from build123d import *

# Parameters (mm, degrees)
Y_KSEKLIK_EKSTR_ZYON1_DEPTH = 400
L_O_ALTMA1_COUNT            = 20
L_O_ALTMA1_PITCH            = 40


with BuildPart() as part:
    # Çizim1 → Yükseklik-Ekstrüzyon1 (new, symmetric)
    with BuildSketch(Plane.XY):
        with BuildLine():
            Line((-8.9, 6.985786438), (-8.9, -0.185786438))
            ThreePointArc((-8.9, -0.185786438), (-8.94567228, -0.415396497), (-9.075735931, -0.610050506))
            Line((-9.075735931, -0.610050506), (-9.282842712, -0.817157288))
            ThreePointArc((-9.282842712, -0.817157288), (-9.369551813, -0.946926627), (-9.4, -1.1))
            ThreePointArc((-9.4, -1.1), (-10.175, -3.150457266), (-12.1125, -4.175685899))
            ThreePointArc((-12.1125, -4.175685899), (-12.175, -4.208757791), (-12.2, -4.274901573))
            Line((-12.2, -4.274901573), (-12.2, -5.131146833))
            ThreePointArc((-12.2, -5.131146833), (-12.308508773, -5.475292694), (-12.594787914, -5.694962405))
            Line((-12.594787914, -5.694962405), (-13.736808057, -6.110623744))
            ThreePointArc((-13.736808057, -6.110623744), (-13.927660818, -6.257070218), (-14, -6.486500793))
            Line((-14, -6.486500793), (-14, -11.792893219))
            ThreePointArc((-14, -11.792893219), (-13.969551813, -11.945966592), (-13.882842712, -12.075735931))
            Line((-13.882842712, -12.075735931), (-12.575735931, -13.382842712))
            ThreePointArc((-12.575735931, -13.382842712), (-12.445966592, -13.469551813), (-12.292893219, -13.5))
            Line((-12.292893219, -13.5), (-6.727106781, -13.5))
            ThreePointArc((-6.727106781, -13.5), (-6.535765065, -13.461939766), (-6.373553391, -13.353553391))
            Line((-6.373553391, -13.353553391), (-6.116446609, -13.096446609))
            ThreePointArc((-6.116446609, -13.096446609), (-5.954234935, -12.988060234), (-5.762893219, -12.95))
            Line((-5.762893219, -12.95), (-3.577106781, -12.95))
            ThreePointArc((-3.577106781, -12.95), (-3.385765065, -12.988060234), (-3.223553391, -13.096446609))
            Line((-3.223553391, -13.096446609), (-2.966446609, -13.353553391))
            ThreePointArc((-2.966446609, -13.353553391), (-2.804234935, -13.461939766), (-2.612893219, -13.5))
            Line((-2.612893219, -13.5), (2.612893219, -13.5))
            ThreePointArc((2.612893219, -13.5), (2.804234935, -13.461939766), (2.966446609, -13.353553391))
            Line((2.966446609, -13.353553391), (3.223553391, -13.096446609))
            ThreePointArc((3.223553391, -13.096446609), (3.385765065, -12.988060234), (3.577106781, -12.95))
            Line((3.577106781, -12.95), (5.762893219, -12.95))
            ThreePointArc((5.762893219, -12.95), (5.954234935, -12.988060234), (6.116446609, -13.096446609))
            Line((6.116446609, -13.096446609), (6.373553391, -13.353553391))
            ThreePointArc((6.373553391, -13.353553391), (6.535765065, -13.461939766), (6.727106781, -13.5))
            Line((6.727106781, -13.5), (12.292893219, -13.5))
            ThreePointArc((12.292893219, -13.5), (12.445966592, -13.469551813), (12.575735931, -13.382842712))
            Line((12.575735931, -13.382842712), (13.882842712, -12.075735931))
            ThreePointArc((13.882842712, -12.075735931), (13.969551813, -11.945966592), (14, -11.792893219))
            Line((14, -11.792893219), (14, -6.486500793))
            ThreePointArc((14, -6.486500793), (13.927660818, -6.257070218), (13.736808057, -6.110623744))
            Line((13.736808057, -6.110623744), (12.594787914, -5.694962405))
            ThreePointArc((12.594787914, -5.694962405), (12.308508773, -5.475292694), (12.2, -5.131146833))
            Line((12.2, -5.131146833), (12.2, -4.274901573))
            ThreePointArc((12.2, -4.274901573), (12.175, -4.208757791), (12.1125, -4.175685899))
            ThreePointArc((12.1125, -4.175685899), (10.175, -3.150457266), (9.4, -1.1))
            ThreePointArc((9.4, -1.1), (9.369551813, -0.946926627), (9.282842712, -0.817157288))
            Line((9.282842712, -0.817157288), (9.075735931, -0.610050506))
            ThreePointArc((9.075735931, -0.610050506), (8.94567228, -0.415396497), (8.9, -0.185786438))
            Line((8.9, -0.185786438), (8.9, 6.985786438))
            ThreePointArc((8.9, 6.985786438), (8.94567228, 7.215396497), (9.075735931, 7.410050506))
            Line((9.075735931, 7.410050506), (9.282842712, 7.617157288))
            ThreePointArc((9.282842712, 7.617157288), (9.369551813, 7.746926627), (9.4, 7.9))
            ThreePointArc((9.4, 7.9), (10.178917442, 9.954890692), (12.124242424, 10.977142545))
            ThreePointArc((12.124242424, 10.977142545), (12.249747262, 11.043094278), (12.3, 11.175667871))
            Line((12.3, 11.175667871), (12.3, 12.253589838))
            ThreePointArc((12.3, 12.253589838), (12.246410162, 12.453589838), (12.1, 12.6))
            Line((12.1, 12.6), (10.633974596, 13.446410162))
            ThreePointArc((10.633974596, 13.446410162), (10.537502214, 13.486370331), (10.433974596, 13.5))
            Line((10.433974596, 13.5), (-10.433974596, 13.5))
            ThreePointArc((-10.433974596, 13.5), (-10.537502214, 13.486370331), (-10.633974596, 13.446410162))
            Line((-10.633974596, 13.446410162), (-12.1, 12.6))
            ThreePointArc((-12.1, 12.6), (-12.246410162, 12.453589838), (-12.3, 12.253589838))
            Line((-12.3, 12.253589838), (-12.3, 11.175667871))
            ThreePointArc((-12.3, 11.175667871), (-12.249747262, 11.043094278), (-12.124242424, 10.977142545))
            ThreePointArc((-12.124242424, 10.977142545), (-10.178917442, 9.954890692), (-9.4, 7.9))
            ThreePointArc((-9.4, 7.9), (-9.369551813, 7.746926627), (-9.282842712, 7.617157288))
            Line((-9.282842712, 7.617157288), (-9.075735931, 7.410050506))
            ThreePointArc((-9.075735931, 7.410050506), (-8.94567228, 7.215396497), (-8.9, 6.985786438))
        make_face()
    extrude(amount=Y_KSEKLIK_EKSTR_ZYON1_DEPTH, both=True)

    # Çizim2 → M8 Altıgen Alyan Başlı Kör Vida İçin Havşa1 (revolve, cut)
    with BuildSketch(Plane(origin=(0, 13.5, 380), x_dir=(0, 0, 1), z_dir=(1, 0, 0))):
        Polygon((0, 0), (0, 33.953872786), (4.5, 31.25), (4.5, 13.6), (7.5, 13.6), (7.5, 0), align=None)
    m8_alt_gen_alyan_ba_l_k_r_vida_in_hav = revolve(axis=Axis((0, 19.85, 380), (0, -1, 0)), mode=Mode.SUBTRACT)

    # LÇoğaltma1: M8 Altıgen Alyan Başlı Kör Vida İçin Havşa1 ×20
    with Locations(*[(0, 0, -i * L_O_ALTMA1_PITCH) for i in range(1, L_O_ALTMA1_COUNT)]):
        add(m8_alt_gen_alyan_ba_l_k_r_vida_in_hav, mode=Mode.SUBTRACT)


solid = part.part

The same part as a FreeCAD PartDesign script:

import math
import FreeCAD as App
import Part
import Sketcher
Q = App.Units.Quantity

doc = App.newDocument("Part")
params = doc.addObject("Spreadsheet::Sheet", "Params")
for row, (alias, value) in enumerate([
    ("sketch1_radius", "0.6 mm"),
    ("sketch1_radius2", "0.4 mm"),
    ("sketch1_radius3", "3.1 mm"),
    ("sketch1_radius4", "0.1 mm"),
    ("sketch1_radius5", "0.5 mm"),
    ("pad1_length", "800 mm"),
    ("sketch2_height", "3 mm"),
    ("sketch2_width", "13.6 mm"),
    ("sketch2_height2", "7.5 mm"),
    ("sketch2_width2", "17.65 mm"),
    ("groove_angle", "360 deg"),
    ("linearpattern_pitch", "40 mm"),
], start=1):
    params.set(f"A{row}", alias)
    params.set(f"B{row}", "=" + value)
    params.setAlias(f"B{row}", alias)

body = doc.addObject("PartDesign::Body", "Body")

sketch1 = doc.addObject("Sketcher::SketchObject", "Sketch")
body.addObject(sketch1)
sketch1.AttachmentSupport = (doc.XY_Plane, [""])
sketch1.MapMode = "FlatFace"
sketch1.addGeometry(Part.LineSegment(App.Vector(-8.9, 6.99, 0), App.Vector(-8.9, -0.19, 0)), False)
sketch1.addGeometry(Part.ArcOfCircle(Part.Circle(App.Vector(-9.5, -0.19, 0), App.Vector(0, 0, 1), 0.6), math.radians(-45), math.radians(0)), False)
sketch1.addGeometry(Part.LineSegment(App.Vector(-9.08, -0.61, 0), App.Vector(-9.28, -0.82, 0)), False)
sketch1.addGeometry(Part.ArcOfCircle(Part.Circle(App.Vector(-9, -1.1, 0), App.Vector(0, 0, 1), 0.4), math.radians(135), math.radians(180)), False)
sketch1.addGeometry(Part.ArcOfCircle(Part.Circle(App.Vector(-12.5, -1.1, 0), App.Vector(0, 0, 1), 3.1), math.radians(-83), math.radians(0)), False)
sketch1.addGeometry(Part.ArcOfCircle(Part.Circle(App.Vector(-12.1, -4.27, 0), App.Vector(0, 0, 1), 0.1), math.radians(97), math.radians(180)), False)
sketch1.addGeometry(Part.LineSegment(App.Vector(-12.2, -4.27, 0), App.Vector(-12.2, -5.13, 0)), False)
sketch1.addGeometry(Part.ArcOfCircle(Part.Circle(App.Vector(-12.8, -5.13, 0), App.Vector(0, 0, 1), 0.6), math.radians(-70), math.radians(0)), False)
sketch1.addGeometry(Part.LineSegment(App.Vector(-12.59, -5.69, 0), App.Vector(-13.74, -6.11, 0)), False)
sketch1.addGeometry(Part.ArcOfCircle(Part.Circle(App.Vector(-13.6, -6.49, 0), App.Vector(0, 0, 1), 0.4), math.radians(110), math.radians(180)), False)
sketch1.addGeometry(Part.LineSegment(App.Vector(-14, -6.49, 0), App.Vector(-14, -11.79, 0)), False)
sketch1.addGeometry(Part.ArcOfCircle(Part.Circle(App.Vector(-13.6, -11.79, 0), App.Vector(0, 0, 1), 0.4), math.radians(180), math.radians(225)), False)
sketch1.addGeometry(Part.LineSegment(App.Vector(-13.88, -12.08, 0), App.Vector(-12.58, -13.38, 0)), False)
sketch1.addGeometry(Part.ArcOfCircle(Part.Circle(App.Vector(-12.29, -13.1, 0), App.Vector(0, 0, 1), 0.4), math.radians(-135), math.radians(-90)), False)
sketch1.addGeometry(Part.LineSegment(App.Vector(-12.29, -13.5, 0), App.Vector(-6.73, -13.5, 0)), False)
sketch1.addGeometry(Part.ArcOfCircle(Part.Circle(App.Vector(-6.73, -13, 0), App.Vector(0, 0, 1), 0.5), math.radians(-90), math.radians(-45)), False)
sketch1.addGeometry(Part.LineSegment(App.Vector(-6.37, -13.35, 0), App.Vector(-6.12, -13.1, 0)), False)
sketch1.addGeometry(Part.ArcOfCircle(Part.Circle(App.Vector(-5.76, -13.45, 0), App.Vector(0, 0, 1), 0.5), math.radians(90), math.radians(135)), False)
sketch1.addGeometry(Part.LineSegment(App.Vector(-5.76, -12.95, 0), App.Vector(-3.58, -12.95, 0)), False)
sketch1.addGeometry(Part.ArcOfCircle(Part.Circle(App.Vector(-3.58, -13.45, 0), App.Vector(0, 0, 1), 0.5), math.radians(45), math.radians(90)), False)
sketch1.addGeometry(Part.LineSegment(App.Vector(-3.22, -13.1, 0), App.Vector(-2.97, -13.35, 0)), False)
sketch1.addGeometry(Part.ArcOfCircle(Part.Circle(App.Vector(-2.61, -13, 0), App.Vector(0, 0, 1), 0.5), math.radians(-135), math.radians(-90)), False)
sketch1.addGeometry(Part.LineSegment(App.Vector(-2.61, -13.5, 0), App.Vector(2.61, -13.5, 0)), False)
sketch1.addGeometry(Part.ArcOfCircle(Part.Circle(App.Vector(2.61, -13, 0), App.Vector(0, 0, 1), 0.5), math.radians(-90), math.radians(-45)), False)
sketch1.addGeometry(Part.LineSegment(App.Vector(2.97, -13.35, 0), App.Vector(3.22, -13.1, 0)), False)
sketch1.addGeometry(Part.ArcOfCircle(Part.Circle(App.Vector(3.58, -13.45, 0), App.Vector(0, 0, 1), 0.5), math.radians(90), math.radians(135)), False)
sketch1.addGeometry(Part.LineSegment(App.Vector(3.58, -12.95, 0), App.Vector(5.76, -12.95, 0)), False)
sketch1.addGeometry(Part.ArcOfCircle(Part.Circle(App.Vector(5.76, -13.45, 0), App.Vector(0, 0, 1), 0.5), math.radians(45), math.radians(90)), False)
sketch1.addGeometry(Part.LineSegment(App.Vector(6.12, -13.1, 0), App.Vector(6.37, -13.35, 0)), False)
sketch1.addGeometry(Part.ArcOfCircle(Part.Circle(App.Vector(6.73, -13, 0), App.Vector(0, 0, 1), 0.5), math.radians(-135), math.radians(-90)), False)
sketch1.addGeometry(Part.LineSegment(App.Vector(6.73, -13.5, 0), App.Vector(12.29, -13.5, 0)), False)
sketch1.addGeometry(Part.ArcOfCircle(Part.Circle(App.Vector(12.29, -13.1, 0), App.Vector(0, 0, 1), 0.4), math.radians(-90), math.radians(-45)), False)
sketch1.addGeometry(Part.LineSegment(App.Vector(12.58, -13.38, 0), App.Vector(13.88, -12.08, 0)), False)
sketch1.addGeometry(Part.ArcOfCircle(Part.Circle(App.Vector(13.6, -11.79, 0), App.Vector(0, 0, 1), 0.4), math.radians(-45), math.radians(0)), False)
sketch1.addGeometry(Part.LineSegment(App.Vector(14, -11.79, 0), App.Vector(14, -6.49, 0)), False)
sketch1.addGeometry(Part.ArcOfCircle(Part.Circle(App.Vector(13.6, -6.49, 0), App.Vector(0, 0, 1), 0.4), math.radians(0), math.radians(70)), False)
sketch1.addGeometry(Part.LineSegment(App.Vector(13.74, -6.11, 0), App.Vector(12.59, -5.69, 0)), False)
sketch1.addGeometry(Part.ArcOfCircle(Part.Circle(App.Vector(12.8, -5.13, 0), App.Vector(0, 0, 1), 0.6), math.radians(180), math.radians(250)), False)
sketch1.addGeometry(Part.LineSegment(App.Vector(12.2, -5.13, 0), App.Vector(12.2, -4.27, 0)), False)
sketch1.addGeometry(Part.ArcOfCircle(Part.Circle(App.Vector(12.1, -4.27, 0), App.Vector(0, 0, 1), 0.1), math.radians(0), math.radians(83)), False)
sketch1.addGeometry(Part.ArcOfCircle(Part.Circle(App.Vector(12.5, -1.1, 0), App.Vector(0, 0, 1), 3.1), math.radians(180), math.radians(263)), False)
sketch1.addGeometry(Part.ArcOfCircle(Part.Circle(App.Vector(9, -1.1, 0), App.Vector(0, 0, 1), 0.4), math.radians(0), math.radians(45)), False)
sketch1.addGeometry(Part.LineSegment(App.Vector(9.28, -0.82, 0), App.Vector(9.08, -0.61, 0)), False)
sketch1.addGeometry(Part.ArcOfCircle(Part.Circle(App.Vector(9.5, -0.19, 0), App.Vector(0, 0, 1), 0.6), math.radians(180), math.radians(225)), False)
sketch1.addGeometry(Part.LineSegment(App.Vector(8.9, -0.19, 0), App.Vector(8.9, 6.99, 0)), False)
sketch1.addGeometry(Part.ArcOfCircle(Part.Circle(App.Vector(9.5, 6.99, 0), App.Vector(0, 0, 1), 0.6), math.radians(135), math.radians(180)), False)
sketch1.addGeometry(Part.LineSegment(App.Vector(9.08, 7.41, 0), App.Vector(9.28, 7.62, 0)), False)
sketch1.addGeometry(Part.ArcOfCircle(Part.Circle(App.Vector(9, 7.9, 0), App.Vector(0, 0, 1), 0.4), math.radians(-45), math.radians(0)), False)
sketch1.addGeometry(Part.ArcOfCircle(Part.Circle(App.Vector(12.5, 7.9, 0), App.Vector(0, 0, 1), 3.1), math.radians(97), math.radians(180)), False)
sketch1.addGeometry(Part.ArcOfCircle(Part.Circle(App.Vector(12.1, 11.18, 0), App.Vector(0, 0, 1), 0.2), math.radians(-83), math.radians(0)), False)
sketch1.addGeometry(Part.LineSegment(App.Vector(12.3, 11.18, 0), App.Vector(12.3, 12.25, 0)), False)
sketch1.addGeometry(Part.ArcOfCircle(Part.Circle(App.Vector(11.9, 12.25, 0), App.Vector(0, 0, 1), 0.4), math.radians(0), math.radians(60)), False)
sketch1.addGeometry(Part.LineSegment(App.Vector(12.1, 12.6, 0), App.Vector(10.63, 13.45, 0)), False)
sketch1.addGeometry(Part.ArcOfCircle(Part.Circle(App.Vector(10.43, 13.1, 0), App.Vector(0, 0, 1), 0.4), math.radians(60), math.radians(90)), False)
sketch1.addGeometry(Part.LineSegment(App.Vector(10.43, 13.5, 0), App.Vector(-10.43, 13.5, 0)), False)
sketch1.addGeometry(Part.ArcOfCircle(Part.Circle(App.Vector(-10.43, 13.1, 0), App.Vector(0, 0, 1), 0.4), math.radians(90), math.radians(120)), False)
sketch1.addGeometry(Part.LineSegment(App.Vector(-10.63, 13.45, 0), App.Vector(-12.1, 12.6, 0)), False)
sketch1.addGeometry(Part.ArcOfCircle(Part.Circle(App.Vector(-11.9, 12.25, 0), App.Vector(0, 0, 1), 0.4), math.radians(120), math.radians(180)), False)
sketch1.addGeometry(Part.LineSegment(App.Vector(-12.3, 12.25, 0), App.Vector(-12.3, 11.18, 0)), False)
sketch1.addGeometry(Part.ArcOfCircle(Part.Circle(App.Vector(-12.1, 11.18, 0), App.Vector(0, 0, 1), 0.2), math.radians(180), math.radians(263)), False)
sketch1.addGeometry(Part.ArcOfCircle(Part.Circle(App.Vector(-12.5, 7.9, 0), App.Vector(0, 0, 1), 3.1), math.radians(0), math.radians(83)), False)
sketch1.addGeometry(Part.ArcOfCircle(Part.Circle(App.Vector(-9, 7.9, 0), App.Vector(0, 0, 1), 0.4), math.radians(180), math.radians(225)), False)
sketch1.addGeometry(Part.LineSegment(App.Vector(-9.28, 7.62, 0), App.Vector(-9.08, 7.41, 0)), False)
sketch1.addGeometry(Part.ArcOfCircle(Part.Circle(App.Vector(-9.5, 6.99, 0), App.Vector(0, 0, 1), 0.6), math.radians(0), math.radians(45)), False)
sketch1.addConstraint(Sketcher.Constraint("Tangent", 0, 2, 1, 2))
sketch1.addConstraint(Sketcher.Constraint("Tangent", 1, 1, 2, 1))
sketch1.addConstraint(Sketcher.Constraint("Tangent", 2, 2, 3, 1))
sketch1.addConstraint(Sketcher.Constraint("Tangent", 3, 2, 4, 2))
sketch1.addConstraint(Sketcher.Constraint("Tangent", 4, 1, 5, 1))
sketch1.addConstraint(Sketcher.Constraint("Tangent", 5, 2, 6, 1))
sketch1.addConstraint(Sketcher.Constraint("Tangent", 6, 2, 7, 2))
sketch1.addConstraint(Sketcher.Constraint("Tangent", 7, 1, 8, 1))
sketch1.addConstraint(Sketcher.Constraint("Tangent", 8, 2, 9, 1))
sketch1.addConstraint(Sketcher.Constraint("Tangent", 9, 2, 10, 1))
sketch1.addConstraint(Sketcher.Constraint("Tangent", 10, 2, 11, 1))
sketch1.addConstraint(Sketcher.Constraint("Tangent", 11, 2, 12, 1))
sketch1.addConstraint(Sketcher.Constraint("Tangent", 12, 2, 13, 1))
sketch1.addConstraint(Sketcher.Constraint("Tangent", 13, 2, 14, 1))
sketch1.addConstraint(Sketcher.Constraint("Tangent", 14, 2, 15, 1))
sketch1.addConstraint(Sketcher.Constraint("Tangent", 15, 2, 16, 1))
sketch1.addConstraint(Sketcher.Constraint("Tangent", 16, 2, 17, 2))
sketch1.addConstraint(Sketcher.Constraint("Tangent", 17, 1, 18, 1))
sketch1.addConstraint(Sketcher.Constraint("Tangent", 18, 2, 19, 2))
sketch1.addConstraint(Sketcher.Constraint("Tangent", 19, 1, 20, 1))
sketch1.addConstraint(Sketcher.Constraint("Tangent", 20, 2, 21, 1))
sketch1.addConstraint(Sketcher.Constraint("Tangent", 21, 2, 22, 1))
sketch1.addConstraint(Sketcher.Constraint("Tangent", 22, 2, 23, 1))
sketch1.addConstraint(Sketcher.Constraint("Tangent", 23, 2, 24, 1))
sketch1.addConstraint(Sketcher.Constraint("Tangent", 24, 2, 25, 2))
sketch1.addConstraint(Sketcher.Constraint("Tangent", 25, 1, 26, 1))
sketch1.addConstraint(Sketcher.Constraint("Tangent", 26, 2, 27, 2))
sketch1.addConstraint(Sketcher.Constraint("Tangent", 27, 1, 28, 1))
sketch1.addConstraint(Sketcher.Constraint("Tangent", 28, 2, 29, 1))
sketch1.addConstraint(Sketcher.Constraint("Tangent", 29, 2, 30, 1))
sketch1.addConstraint(Sketcher.Constraint("Tangent", 30, 2, 31, 1))
sketch1.addConstraint(Sketcher.Constraint("Tangent", 31, 2, 32, 1))
sketch1.addConstraint(Sketcher.Constraint("Tangent", 32, 2, 33, 1))
sketch1.addConstraint(Sketcher.Constraint("Tangent", 33, 2, 34, 1))
sketch1.addConstraint(Sketcher.Constraint("Tangent", 34, 2, 35, 1))
sketch1.addConstraint(Sketcher.Constraint("Tangent", 35, 2, 36, 1))
sketch1.addConstraint(Sketcher.Constraint("Tangent", 36, 2, 37, 2))
sketch1.addConstraint(Sketcher.Constraint("Tangent", 37, 1, 38, 1))
sketch1.addConstraint(Sketcher.Constraint("Tangent", 38, 2, 39, 1))
sketch1.addConstraint(Sketcher.Constraint("Tangent", 39, 2, 40, 2))
sketch1.addConstraint(Sketcher.Constraint("Tangent", 40, 1, 41, 1))
sketch1.addConstraint(Sketcher.Constraint("Tangent", 41, 2, 42, 1))
sketch1.addConstraint(Sketcher.Constraint("Tangent", 42, 2, 43, 2))
sketch1.addConstraint(Sketcher.Constraint("Tangent", 43, 1, 44, 1))
sketch1.addConstraint(Sketcher.Constraint("Tangent", 44, 2, 45, 2))
sketch1.addConstraint(Sketcher.Constraint("Tangent", 45, 1, 46, 1))
sketch1.addConstraint(Sketcher.Constraint("Tangent", 46, 2, 47, 1))
sketch1.addConstraint(Sketcher.Constraint("Tangent", 47, 2, 48, 2))
sketch1.addConstraint(Sketcher.Constraint("Tangent", 48, 1, 49, 1))
sketch1.addConstraint(Sketcher.Constraint("Tangent", 49, 2, 50, 1))
sketch1.addConstraint(Sketcher.Constraint("Tangent", 50, 2, 51, 1))
sketch1.addConstraint(Sketcher.Constraint("Tangent", 51, 2, 52, 1))
sketch1.addConstraint(Sketcher.Constraint("Tangent", 52, 2, 53, 1))
sketch1.addConstraint(Sketcher.Constraint("Tangent", 53, 2, 54, 1))
sketch1.addConstraint(Sketcher.Constraint("Tangent", 54, 2, 55, 1))
sketch1.addConstraint(Sketcher.Constraint("Tangent", 55, 2, 56, 1))
sketch1.addConstraint(Sketcher.Constraint("Tangent", 56, 2, 57, 1))
sketch1.addConstraint(Sketcher.Constraint("Tangent", 57, 2, 58, 1))
sketch1.addConstraint(Sketcher.Constraint("Tangent", 58, 2, 59, 1))
sketch1.addConstraint(Sketcher.Constraint("Tangent", 59, 2, 60, 2))
sketch1.addConstraint(Sketcher.Constraint("Tangent", 60, 1, 61, 1))
sketch1.addConstraint(Sketcher.Constraint("Tangent", 61, 2, 62, 1))
sketch1.addConstraint(Sketcher.Constraint("Tangent", 62, 2, 63, 2))
sketch1.addConstraint(Sketcher.Constraint("Tangent", 63, 1, 0, 1))
sketch1.addConstraint(Sketcher.Constraint("Vertical", 0))
sketch1.addConstraint(Sketcher.Constraint("Vertical", 6))
sketch1.addConstraint(Sketcher.Constraint("Vertical", 10))
sketch1.addConstraint(Sketcher.Constraint("Horizontal", 14))
sketch1.addConstraint(Sketcher.Constraint("Horizontal", 18))
sketch1.addConstraint(Sketcher.Constraint("Horizontal", 22))
sketch1.addConstraint(Sketcher.Constraint("Horizontal", 26))
sketch1.addConstraint(Sketcher.Constraint("Horizontal", 30))
sketch1.addConstraint(Sketcher.Constraint("Vertical", 34))
sketch1.addConstraint(Sketcher.Constraint("Vertical", 38))
sketch1.addConstraint(Sketcher.Constraint("Vertical", 44))
sketch1.addConstraint(Sketcher.Constraint("Vertical", 50))
sketch1.addConstraint(Sketcher.Constraint("Horizontal", 54))
sketch1.addConstraint(Sketcher.Constraint("Vertical", 58))
sketch1.addConstraint(Sketcher.Constraint("Equal", 1, 7))
sketch1.addConstraint(Sketcher.Constraint("Equal", 3, 9))
sketch1.addConstraint(Sketcher.Constraint("Equal", 9, 11))
sketch1.addConstraint(Sketcher.Constraint("Equal", 11, 13))
sketch1.addConstraint(Sketcher.Constraint("Equal", 15, 17))
sketch1.addConstraint(Sketcher.Constraint("Equal", 17, 19))
sketch1.addConstraint(Sketcher.Constraint("Equal", 19, 21))
sketch1.addConstraint(Sketcher.Constraint("Equal", 21, 23))
sketch1.addConstraint(Sketcher.Constraint("Equal", 23, 25))
sketch1.addConstraint(Sketcher.Constraint("Equal", 25, 27))
sketch1.addConstraint(Sketcher.Constraint("Equal", 27, 29))
sketch1.addConstraint(Sketcher.Constraint("Equal", 13, 31))
sketch1.addConstraint(Sketcher.Constraint("Equal", 31, 33))
sketch1.addConstraint(Sketcher.Constraint("Equal", 33, 35))
sketch1.addConstraint(Sketcher.Constraint("Equal", 7, 37))
sketch1.addConstraint(Sketcher.Constraint("Equal", 5, 39))
sketch1.addConstraint(Sketcher.Constraint("Equal", 4, 40))
sketch1.addConstraint(Sketcher.Constraint("Equal", 35, 41))
sketch1.addConstraint(Sketcher.Constraint("Equal", 37, 43))
sketch1.addConstraint(Sketcher.Constraint("Equal", 43, 45))
sketch1.addConstraint(Sketcher.Constraint("Equal", 41, 47))
sketch1.addConstraint(Sketcher.Constraint("Equal", 40, 48))
sketch1.addConstraint(Sketcher.Constraint("Equal", 47, 51))
sketch1.addConstraint(Sketcher.Constraint("Equal", 51, 53))
sketch1.addConstraint(Sketcher.Constraint("Equal", 53, 55))
sketch1.addConstraint(Sketcher.Constraint("Equal", 55, 57))
sketch1.addConstraint(Sketcher.Constraint("Equal", 49, 59))
sketch1.addConstraint(Sketcher.Constraint("Equal", 48, 60))
sketch1.addConstraint(Sketcher.Constraint("Equal", 57, 61))
sketch1.addConstraint(Sketcher.Constraint("Equal", 45, 63))
sketch1.addConstraint(Sketcher.Constraint("Symmetric", 19, 3, 25, 3, -2))
sketch1.addConstraint(Sketcher.Constraint("Symmetric", 15, 3, 29, 3, -2))
sketch1.addConstraint(Sketcher.Constraint("Symmetric", 11, 3, 33, 3, -2))
sketch1.addConstraint(Sketcher.Constraint("Symmetric", 7, 3, 37, 3, -2))
sketch1.addConstraint(Sketcher.Constraint("Symmetric", 4, 3, 40, 3, -2))
sketch1.addConstraint(Sketcher.Constraint("Symmetric", 1, 3, 43, 3, -2))
sketch1.addConstraint(Sketcher.Constraint("Symmetric", 51, 3, 57, 3, -2))
sketch1.addConstraint(Sketcher.Constraint("Symmetric", 48, 3, 60, 3, -2))
sketch1.addConstraint(Sketcher.Constraint("Symmetric", 46, 2, 61, 2, -2))
sketch1.addConstraint(Sketcher.Constraint("Perpendicular", 2, 12))
sketch1.addConstraint(Sketcher.Constraint("Perpendicular", 12, 16))
sketch1.addConstraint(Sketcher.Constraint("Perpendicular", 16, 20))
sketch1.addConstraint(Sketcher.Constraint("Perpendicular", 20, 24))
sketch1.addConstraint(Sketcher.Constraint("Perpendicular", 24, 28))
sketch1.addConstraint(Sketcher.Constraint("Perpendicular", 28, 32))
sketch1.addConstraint(Sketcher.Constraint("Perpendicular", 32, 42))
sketch1.addConstraint(Sketcher.Constraint("Perpendicular", 42, 46))
sketch1.addConstraint(Sketcher.Constraint("Perpendicular", 46, 62))
sketch1.addConstraint(Sketcher.Constraint("Horizontal", 3, 3, 4, 3))
sketch1.addConstraint(Sketcher.Constraint("Horizontal", 15, 3, 21, 3))
sketch1.addConstraint(Sketcher.Constraint("Horizontal", 9, 3, 35, 3))
sketch1.addConstraint(Sketcher.Constraint("Horizontal", 47, 3, 48, 3))
sketch1.addConstraint(Sketcher.Constraint("Horizontal", 52, 2, 55, 2))
sketch1.addConstraint(Sketcher.Constraint("Vertical", 41, 3, 47, 3))
sketch1.addConstraint(Sketcher.Constraint("Vertical", 39, 3, 49, 3))
sketch1.addConstraint(Sketcher.Constraint("Vertical", 49, 3, 51, 2))
sketch1.addConstraint(Sketcher.Constraint("Radius", 1, 0.6))
sketch1.addConstraint(Sketcher.Constraint("Radius", 3, 0.4))
sketch1.addConstraint(Sketcher.Constraint("Radius", 4, 3.1))
sketch1.addConstraint(Sketcher.Constraint("Radius", 5, 0.1))
sketch1.addConstraint(Sketcher.Constraint("Radius", 15, 0.5))
sketch1.addConstraint(Sketcher.Constraint("Radius", 49, 0.2))
sketch1.addConstraint(Sketcher.Constraint("Angle", 8, Q("-160 deg")))
sketch1.addConstraint(Sketcher.Constraint("DistanceX", 3, 3, -1, 1, 9.0))
sketch1.addConstraint(Sketcher.Constraint("DistanceY", 15, 3, -1, 1, 13.0))
sketch1.addConstraint(Sketcher.Constraint("DistanceX", 9, 2, -1, 1, 14.0))
sketch1.addConstraint(Sketcher.Constraint("DistanceX", 1, 3, -1, 1, 9.5))
sketch1.addConstraint(Sketcher.Constraint("DistanceY", 3, 3, -1, 1, 1.1))
sketch1.addConstraint(Sketcher.Constraint("DistanceX", 5, 3, -1, 1, 12.1))
sketch1.addConstraint(Sketcher.Constraint("DistanceY", -1, 1, 47, 3, 7.9))
sketch1.addConstraint(Sketcher.Constraint("DistanceY", -1, 1, 53, 3, 13.1))
sketch1.addConstraint(Sketcher.Constraint("DistanceY", -1, 1, 51, 2, 12.6))
sketch1.addConstraint(Sketcher.Constraint("DistanceY", 17, 3, -1, 1, 13.45))
sketch1.addConstraint(Sketcher.Constraint("DistanceY", 9, 3, -1, 1, 6.486501))
sketch1.addConstraint(Sketcher.Constraint("Distance", 12, 1.848528))
sketch1.addConstraint(Sketcher.Constraint("DistanceX", 14, 1, 14, 2, 5.565786))
sketch1.addConstraint(Sketcher.Constraint("DistanceX", 18, 1, 18, 2, 2.185786))
sketch1.setExpression("Constraints[134]", "Params.sketch1_radius")
sketch1.setExpression("Constraints[135]", "Params.sketch1_radius2")
sketch1.setExpression("Constraints[136]", "Params.sketch1_radius3")
sketch1.setExpression("Constraints[137]", "Params.sketch1_radius4")
sketch1.setExpression("Constraints[138]", "Params.sketch1_radius5")
pad1 = doc.addObject("PartDesign::Pad", "Pad")
body.addObject(pad1)
pad1.Profile = sketch1
pad1.setExpression("Length", "Params.pad1_length")
pad1.Midplane = True

sketch2 = doc.addObject("Sketcher::SketchObject", "Sketch001")
body.addObject(sketch2)
sketch2.AttachmentSupport = (doc.YZ_Plane, [""])
sketch2.MapMode = "FlatFace"
sketch2.addGeometry(Part.LineSegment(App.Vector(-20.5, 380, 0), App.Vector(13.5, 380, 0)), False)
sketch2.addGeometry(Part.LineSegment(App.Vector(13.5, 380, 0), App.Vector(13.5, 387.5, 0)), False)
sketch2.addGeometry(Part.LineSegment(App.Vector(13.5, 387.5, 0), App.Vector(-0.1, 387.5, 0)), False)
sketch2.addGeometry(Part.LineSegment(App.Vector(-0.1, 387.5, 0), App.Vector(-0.1, 384.5, 0)), False)
sketch2.addGeometry(Part.LineSegment(App.Vector(-0.1, 384.5, 0), App.Vector(-17.8, 384.5, 0)), False)
sketch2.addGeometry(Part.LineSegment(App.Vector(-17.8, 384.5, 0), App.Vector(-20.5, 380, 0)), False)
sketch2.addGeometry(Part.LineSegment(App.Vector(13.5, 380, 0), App.Vector(-20.5, 380, 0)), True)
sketch2.addConstraint(Sketcher.Constraint("Coincident", 0, 2, 1, 1))
sketch2.addConstraint(Sketcher.Constraint("Coincident", 1, 2, 2, 1))
sketch2.addConstraint(Sketcher.Constraint("Coincident", 2, 2, 3, 1))
sketch2.addConstraint(Sketcher.Constraint("Coincident", 3, 2, 4, 1))
sketch2.addConstraint(Sketcher.Constraint("Coincident", 4, 2, 5, 1))
sketch2.addConstraint(Sketcher.Constraint("Coincident", 5, 2, 0, 1))
sketch2.addConstraint(Sketcher.Constraint("Horizontal", 0))
sketch2.addConstraint(Sketcher.Constraint("Vertical", 1))
sketch2.addConstraint(Sketcher.Constraint("Horizontal", 2))
sketch2.addConstraint(Sketcher.Constraint("Vertical", 3))
sketch2.addConstraint(Sketcher.Constraint("Horizontal", 4))
sketch2.addConstraint(Sketcher.Constraint("Horizontal", 6))
sketch2.addConstraint(Sketcher.Constraint("Coincident", 6, 1, 0, 2))
sketch2.addConstraint(Sketcher.Constraint("Equal", 0, 6))
sketch2.addConstraint(Sketcher.Constraint("DistanceY", 3, 2, 3, 1, 3.0))
sketch2.addConstraint(Sketcher.Constraint("Angle", 5, Q("-121 deg")))
sketch2.addConstraint(Sketcher.Constraint("DistanceX", 2, 2, 2, 1, 13.6))
sketch2.addConstraint(Sketcher.Constraint("DistanceY", 1, 1, 1, 2, 7.5))
sketch2.addConstraint(Sketcher.Constraint("DistanceY", -1, 1, 0, 2, 380.0))
sketch2.addConstraint(Sketcher.Constraint("DistanceX", 4, 2, 4, 1, 17.65))
sketch2.addConstraint(Sketcher.Constraint("DistanceX", -1, 1, 0, 2, 13.5))
sketch2.setExpression("Constraints[14]", "Params.sketch2_height")
sketch2.setExpression("Constraints[16]", "Params.sketch2_width")
sketch2.setExpression("Constraints[17]", "Params.sketch2_height2")
sketch2.setExpression("Constraints[19]", "Params.sketch2_width2")
groove = doc.addObject("PartDesign::Groove", "Groove")
body.addObject(groove)
groove.Profile = sketch2
groove.ReferenceAxis = (sketch2, ["Axis0"])
groove.setExpression("Angle", "Params.groove_angle")
doc.recompute()

linearpattern = doc.addObject("PartDesign::LinearPattern", "LinearPattern")
body.addObject(linearpattern)
linearpattern.Originals = [groove]
linearpattern.Direction = (doc.Z_Axis, [""])
linearpattern.Mode = "offset"
linearpattern.setExpression("Offset", "Params.linearpattern_pitch")
linearpattern.Occurrences = 20
linearpattern.Reversed = True
body.Tip = linearpattern

doc.recompute()
